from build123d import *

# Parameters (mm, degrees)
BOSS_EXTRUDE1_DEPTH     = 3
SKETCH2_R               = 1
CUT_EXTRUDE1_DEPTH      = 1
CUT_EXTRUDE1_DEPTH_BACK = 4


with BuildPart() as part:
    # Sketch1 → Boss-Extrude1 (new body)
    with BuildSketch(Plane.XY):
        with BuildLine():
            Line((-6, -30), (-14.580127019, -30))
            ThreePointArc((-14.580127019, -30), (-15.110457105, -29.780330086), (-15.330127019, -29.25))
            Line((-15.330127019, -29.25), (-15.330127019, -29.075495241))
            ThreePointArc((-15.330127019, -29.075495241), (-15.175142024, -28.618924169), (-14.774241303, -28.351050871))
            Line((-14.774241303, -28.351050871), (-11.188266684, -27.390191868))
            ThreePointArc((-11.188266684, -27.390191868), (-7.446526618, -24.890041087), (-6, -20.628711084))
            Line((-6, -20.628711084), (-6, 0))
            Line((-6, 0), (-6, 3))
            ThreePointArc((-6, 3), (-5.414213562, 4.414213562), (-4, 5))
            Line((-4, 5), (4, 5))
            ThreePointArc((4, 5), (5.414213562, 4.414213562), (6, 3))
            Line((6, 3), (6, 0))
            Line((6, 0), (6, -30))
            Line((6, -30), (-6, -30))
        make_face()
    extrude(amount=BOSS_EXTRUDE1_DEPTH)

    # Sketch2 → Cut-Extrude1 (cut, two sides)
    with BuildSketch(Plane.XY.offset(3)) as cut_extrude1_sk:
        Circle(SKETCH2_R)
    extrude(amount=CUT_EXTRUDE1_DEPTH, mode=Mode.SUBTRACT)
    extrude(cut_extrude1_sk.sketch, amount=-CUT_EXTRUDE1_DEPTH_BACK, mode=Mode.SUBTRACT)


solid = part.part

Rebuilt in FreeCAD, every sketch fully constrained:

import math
import FreeCAD as App
import Part
import Sketcher
from FreeCAD import Vector
Q = App.Units.Quantity

doc = App.newDocument("Part")
params = doc.addObject("Spreadsheet::Sheet", "Params")
for row, (alias, value) in enumerate([
    ("sketch1_radius", "2 mm"),
    ("sketch1_radius2", "7 mm"),
    ("sketch1_width", "8 mm"),
    ("sketch1_height", "33 mm"),
    ("sketch1_radius3", "0.75 mm"),
    ("pad1_length", "3 mm"),
    ("sketch2_diameter", "2 mm"),
], start=1):
    params.set(f"A{row}", alias)
    params.set(f"B{row}", "=" + value)
    params.setAlias(f"B{row}", alias)

body = doc.addObject("PartDesign::Body", "Body")

# Sketch on XY plane
sketch1 = body.newObject("Sketcher::SketchObject", "Sketch")
sketch1.AttachmentSupport = (doc.getObject("XY_Plane"), [""])
sketch1.MapMode = "FlatFace"
sketch1.addGeometry([
    Part.ArcOfCircle(Part.Circle(Vector(-14.58, -29.25, 0), Vector(0, 0, 1), 0.75), math.radians(180), math.radians(270)),  # 0
    Part.LineSegment(Vector(-14.58, -30, 0), Vector(6, -30, 0)),  # 1
    Part.LineSegment(Vector(6, -30, 0), Vector(6, 3, 0)),  # 2
    Part.ArcOfCircle(Part.Circle(Vector(4, 3, 0), Vector(0, 0, 1), 2), math.radians(0), math.radians(90)),  # 3
    Part.LineSegment(Vector(4, 5, 0), Vector(-4, 5, 0)),  # 4
    Part.ArcOfCircle(Part.Circle(Vector(-4, 3, 0), Vector(0, 0, 1), 2), math.radians(90), math.radians(180)),  # 5
    Part.LineSegment(Vector(-6, 3, 0), Vector(-6, -20.63, 0)),  # 6
    Part.ArcOfCircle(Part.Circle(Vector(-13, -20.63, 0), Vector(0, 0, 1), 7), math.radians(-75), math.radians(0)),  # 7
    Part.LineSegment(Vector(-11.19, -27.39, 0), Vector(-14.77, -28.35, 0)),  # 8
    Part.ArcOfCircle(Part.Circle(Vector(-14.58, -29.08, 0), Vector(0, 0, 1), 0.75), math.radians(105), math.radians(180)),  # 9
    Part.LineSegment(Vector(-15.33, -29.08, 0), Vector(-15.33, -29.25, 0)),  # 10
], False)
sketch1.addConstraint([
    Sketcher.Constraint("Tangent", 0, 2, 1, 1),
    Sketcher.Constraint("Coincident", 1, 2, 2, 1),
    Sketcher.Constraint("Tangent", 2, 2, 3, 1),
    Sketcher.Constraint("Tangent", 3, 2, 4, 1),
    Sketcher.Constraint("Tangent", 4, 2, 5, 1),
    Sketcher.Constraint("Tangent", 5, 2, 6, 1),
    Sketcher.Constraint("Tangent", 6, 2, 7, 2),
    Sketcher.Constraint("Tangent", 7, 1, 8, 1),
    Sketcher.Constraint("Tangent", 8, 2, 9, 1),
    Sketcher.Constraint("Tangent", 9, 2, 10, 1),
    Sketcher.Constraint("Tangent", 10, 2, 0, 1),
    Sketcher.Constraint("Horizontal", 1),
    Sketcher.Constraint("Vertical", 2),
    Sketcher.Constraint("Horizontal", 4),
    Sketcher.Constraint("Vertical", 6),
    Sketcher.Constraint("Vertical", 10),
    Sketcher.Constraint("Equal", 3, 5),
    Sketcher.Constraint("Equal", 0, 9),
    Sketcher.Constraint("Radius", 3, Q("2 mm")),
    Sketcher.Constraint("Radius", 7, Q("7 mm")),
    Sketcher.Constraint("DistanceX", 4, 2, 4, 1, Q("8 mm")),
    Sketcher.Constraint("DistanceY", 2, 1, 2, 2, Q("33 mm")),
    Sketcher.Constraint("Angle", 8, Q("-165 deg")),
    Sketcher.Constraint("Radius", 0, Q("0.75 mm")),
    Sketcher.Constraint("DistanceX", -1, 1, 3, 3, Q("4 mm")),
    Sketcher.Constraint("DistanceY", -1, 1, 3, 3, Q("3 mm")),
    Sketcher.Constraint("DistanceY", 6, 2, 6, 1, Q("23.628711 mm")),
    Sketcher.Constraint("DistanceX", 1, 1, 1, 2, Q("20.580127 mm")),
])
sketch1.setExpression("Constraints[18]", "Params.sketch1_radius")
sketch1.setExpression("Constraints[19]", "Params.sketch1_radius2")
sketch1.setExpression("Constraints[20]", "Params.sketch1_width")
sketch1.setExpression("Constraints[21]", "Params.sketch1_height")
sketch1.setExpression("Constraints[23]", "Params.sketch1_radius3")
pad1 = body.newObject("PartDesign::Pad", "Pad")
pad1.Profile = sketch1
pad1.setExpression("Length", "Params.pad1_length")

# Sketch on XY plane
sketch2 = body.newObject("Sketcher::SketchObject", "Sketch001")
sketch2.AttachmentSupport = (doc.getObject("XY_Plane"), [""])
sketch2.MapMode = "FlatFace"
sketch2.AttachmentOffset = App.Placement(Vector(0, 0, 3), App.Rotation())
sketch2.addGeometry(Part.Circle(Vector(0, 0, 0), Vector(0, 0, 1), 1), False)
sketch2.addConstraint([
    Sketcher.Constraint("Coincident", 0, 3, -1, 1),
    Sketcher.Constraint("Diameter", 0, Q("2 mm")),
])
sketch2.setExpression("Constraints[1]", "Params.sketch2_diameter")
pocket1 = body.newObject("PartDesign::Pocket", "Pocket")
pocket1.Profile = sketch2
pocket1.Type = "ThroughAll"
pocket1.Midplane = True

doc.recompute()
